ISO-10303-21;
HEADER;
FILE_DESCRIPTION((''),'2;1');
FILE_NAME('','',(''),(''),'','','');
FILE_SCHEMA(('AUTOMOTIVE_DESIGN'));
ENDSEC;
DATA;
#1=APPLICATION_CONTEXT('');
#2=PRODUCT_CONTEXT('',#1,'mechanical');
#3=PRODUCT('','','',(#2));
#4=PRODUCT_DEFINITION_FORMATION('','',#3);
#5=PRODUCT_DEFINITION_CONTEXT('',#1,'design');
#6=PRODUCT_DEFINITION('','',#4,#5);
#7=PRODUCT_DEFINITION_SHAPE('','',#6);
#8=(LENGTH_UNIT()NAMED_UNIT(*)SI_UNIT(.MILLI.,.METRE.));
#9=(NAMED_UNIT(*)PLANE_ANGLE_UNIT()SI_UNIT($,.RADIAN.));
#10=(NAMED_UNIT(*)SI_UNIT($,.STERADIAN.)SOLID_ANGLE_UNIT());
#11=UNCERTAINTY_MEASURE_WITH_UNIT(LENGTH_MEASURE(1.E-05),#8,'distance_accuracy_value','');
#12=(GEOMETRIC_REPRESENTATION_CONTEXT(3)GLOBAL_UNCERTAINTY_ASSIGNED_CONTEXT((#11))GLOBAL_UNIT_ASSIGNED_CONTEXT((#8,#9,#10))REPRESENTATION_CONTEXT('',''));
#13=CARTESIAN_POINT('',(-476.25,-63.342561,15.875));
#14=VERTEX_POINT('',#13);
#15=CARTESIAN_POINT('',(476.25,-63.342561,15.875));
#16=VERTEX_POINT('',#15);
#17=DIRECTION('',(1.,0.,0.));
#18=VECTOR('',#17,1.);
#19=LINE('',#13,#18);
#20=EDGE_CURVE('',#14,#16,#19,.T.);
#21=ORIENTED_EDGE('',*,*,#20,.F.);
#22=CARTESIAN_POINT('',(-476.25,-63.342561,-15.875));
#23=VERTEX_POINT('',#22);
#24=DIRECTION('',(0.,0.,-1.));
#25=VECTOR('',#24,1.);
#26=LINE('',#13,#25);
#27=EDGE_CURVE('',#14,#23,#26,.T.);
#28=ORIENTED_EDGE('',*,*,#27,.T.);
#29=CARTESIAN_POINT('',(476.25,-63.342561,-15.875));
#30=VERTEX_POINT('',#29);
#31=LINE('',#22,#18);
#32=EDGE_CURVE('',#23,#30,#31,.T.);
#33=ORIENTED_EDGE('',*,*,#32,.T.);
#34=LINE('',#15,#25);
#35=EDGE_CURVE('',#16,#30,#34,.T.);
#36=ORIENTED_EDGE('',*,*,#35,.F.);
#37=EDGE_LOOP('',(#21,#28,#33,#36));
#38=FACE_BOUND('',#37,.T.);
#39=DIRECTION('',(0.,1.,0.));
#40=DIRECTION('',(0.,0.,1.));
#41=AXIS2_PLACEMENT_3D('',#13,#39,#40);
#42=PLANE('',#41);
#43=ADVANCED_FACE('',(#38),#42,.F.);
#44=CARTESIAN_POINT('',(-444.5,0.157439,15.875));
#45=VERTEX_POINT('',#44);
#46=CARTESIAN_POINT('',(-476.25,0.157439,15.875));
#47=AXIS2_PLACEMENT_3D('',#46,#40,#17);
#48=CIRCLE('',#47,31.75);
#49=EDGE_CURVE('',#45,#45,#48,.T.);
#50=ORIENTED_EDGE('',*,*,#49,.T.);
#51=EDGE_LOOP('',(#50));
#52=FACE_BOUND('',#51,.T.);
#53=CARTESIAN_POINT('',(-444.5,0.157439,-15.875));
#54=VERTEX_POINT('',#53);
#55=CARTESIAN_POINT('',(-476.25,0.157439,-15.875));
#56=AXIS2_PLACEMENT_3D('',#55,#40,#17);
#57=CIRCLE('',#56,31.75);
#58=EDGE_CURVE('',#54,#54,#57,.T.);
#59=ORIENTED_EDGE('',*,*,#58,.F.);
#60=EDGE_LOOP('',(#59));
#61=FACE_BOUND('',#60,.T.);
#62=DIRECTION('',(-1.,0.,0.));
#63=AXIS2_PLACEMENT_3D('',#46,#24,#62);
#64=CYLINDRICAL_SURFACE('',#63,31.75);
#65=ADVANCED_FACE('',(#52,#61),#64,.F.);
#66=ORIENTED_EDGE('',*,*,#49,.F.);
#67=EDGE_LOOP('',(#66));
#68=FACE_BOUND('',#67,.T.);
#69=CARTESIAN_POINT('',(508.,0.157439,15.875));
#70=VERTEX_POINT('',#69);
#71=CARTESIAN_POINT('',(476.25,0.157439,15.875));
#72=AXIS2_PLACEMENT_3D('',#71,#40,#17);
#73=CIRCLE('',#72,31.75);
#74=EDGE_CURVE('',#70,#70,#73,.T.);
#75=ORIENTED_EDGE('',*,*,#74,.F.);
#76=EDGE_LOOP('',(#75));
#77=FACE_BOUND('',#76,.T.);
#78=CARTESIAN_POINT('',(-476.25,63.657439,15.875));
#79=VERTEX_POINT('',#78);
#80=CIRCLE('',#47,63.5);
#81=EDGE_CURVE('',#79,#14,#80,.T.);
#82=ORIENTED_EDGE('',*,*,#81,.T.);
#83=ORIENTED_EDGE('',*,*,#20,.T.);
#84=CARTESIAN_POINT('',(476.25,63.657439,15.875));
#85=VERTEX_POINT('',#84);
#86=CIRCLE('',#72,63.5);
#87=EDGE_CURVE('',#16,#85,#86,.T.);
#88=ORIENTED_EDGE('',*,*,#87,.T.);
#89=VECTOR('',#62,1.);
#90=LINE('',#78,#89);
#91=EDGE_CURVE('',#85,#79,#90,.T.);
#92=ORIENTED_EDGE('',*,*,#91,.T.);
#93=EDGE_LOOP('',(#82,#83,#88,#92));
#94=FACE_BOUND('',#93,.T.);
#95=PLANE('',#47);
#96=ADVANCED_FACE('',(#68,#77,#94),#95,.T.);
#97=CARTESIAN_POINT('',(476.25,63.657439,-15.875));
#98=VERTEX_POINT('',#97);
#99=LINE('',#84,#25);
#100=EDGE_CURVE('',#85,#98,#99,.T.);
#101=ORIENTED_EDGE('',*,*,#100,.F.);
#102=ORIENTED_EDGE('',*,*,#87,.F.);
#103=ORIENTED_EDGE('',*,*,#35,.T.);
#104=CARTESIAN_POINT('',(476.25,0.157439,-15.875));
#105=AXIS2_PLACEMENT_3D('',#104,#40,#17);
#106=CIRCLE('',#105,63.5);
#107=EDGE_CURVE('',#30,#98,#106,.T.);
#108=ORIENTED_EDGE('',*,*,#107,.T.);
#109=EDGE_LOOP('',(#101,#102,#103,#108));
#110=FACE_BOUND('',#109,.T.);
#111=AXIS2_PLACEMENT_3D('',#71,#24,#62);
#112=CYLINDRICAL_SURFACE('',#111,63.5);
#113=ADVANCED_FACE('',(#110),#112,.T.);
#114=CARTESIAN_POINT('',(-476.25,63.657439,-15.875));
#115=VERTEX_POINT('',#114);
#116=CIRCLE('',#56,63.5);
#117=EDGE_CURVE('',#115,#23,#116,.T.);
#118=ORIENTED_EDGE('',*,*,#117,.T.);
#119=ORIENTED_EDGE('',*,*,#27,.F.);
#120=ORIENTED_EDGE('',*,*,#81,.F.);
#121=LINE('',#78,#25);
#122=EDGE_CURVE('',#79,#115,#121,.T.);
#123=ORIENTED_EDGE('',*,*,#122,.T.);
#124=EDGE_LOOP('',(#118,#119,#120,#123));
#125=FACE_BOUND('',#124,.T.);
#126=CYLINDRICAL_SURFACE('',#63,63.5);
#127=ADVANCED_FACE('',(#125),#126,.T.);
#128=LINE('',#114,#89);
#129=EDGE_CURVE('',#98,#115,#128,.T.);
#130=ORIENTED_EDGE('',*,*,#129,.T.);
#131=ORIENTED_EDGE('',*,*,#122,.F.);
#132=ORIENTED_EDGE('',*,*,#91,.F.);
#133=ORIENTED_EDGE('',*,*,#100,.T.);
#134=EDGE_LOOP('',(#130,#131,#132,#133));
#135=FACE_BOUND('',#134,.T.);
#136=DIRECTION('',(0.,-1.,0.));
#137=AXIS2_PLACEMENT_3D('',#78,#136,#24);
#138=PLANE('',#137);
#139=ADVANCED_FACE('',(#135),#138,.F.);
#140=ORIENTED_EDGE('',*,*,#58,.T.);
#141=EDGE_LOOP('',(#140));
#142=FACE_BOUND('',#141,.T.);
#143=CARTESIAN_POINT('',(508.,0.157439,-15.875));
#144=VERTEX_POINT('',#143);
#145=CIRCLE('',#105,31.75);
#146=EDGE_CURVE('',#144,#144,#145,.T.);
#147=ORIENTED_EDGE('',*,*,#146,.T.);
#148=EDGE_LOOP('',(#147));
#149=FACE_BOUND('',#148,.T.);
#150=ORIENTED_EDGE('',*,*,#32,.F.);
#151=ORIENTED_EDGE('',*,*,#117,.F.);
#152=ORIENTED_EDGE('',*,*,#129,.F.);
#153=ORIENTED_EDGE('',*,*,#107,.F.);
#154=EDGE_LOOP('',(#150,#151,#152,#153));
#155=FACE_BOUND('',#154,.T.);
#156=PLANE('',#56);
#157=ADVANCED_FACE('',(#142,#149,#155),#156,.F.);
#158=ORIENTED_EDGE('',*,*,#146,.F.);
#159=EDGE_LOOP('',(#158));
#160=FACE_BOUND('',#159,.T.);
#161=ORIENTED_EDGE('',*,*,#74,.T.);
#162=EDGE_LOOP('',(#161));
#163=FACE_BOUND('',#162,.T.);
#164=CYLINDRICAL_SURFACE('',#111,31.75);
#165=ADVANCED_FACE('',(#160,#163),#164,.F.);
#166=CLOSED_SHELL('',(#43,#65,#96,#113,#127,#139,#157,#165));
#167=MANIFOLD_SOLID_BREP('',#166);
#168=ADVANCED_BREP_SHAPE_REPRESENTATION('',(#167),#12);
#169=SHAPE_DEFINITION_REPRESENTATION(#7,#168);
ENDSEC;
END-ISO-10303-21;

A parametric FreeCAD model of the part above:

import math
import FreeCAD as App
import Part
import Sketcher

V = App.Vector
Q = App.Units.Quantity

doc = App.newDocument("Part")
body = doc.addObject("PartDesign::Body", "Body")

sketch1 = body.newObject("Sketcher::SketchObject", "Sketch")
sketch1.AttachmentSupport = (doc.getObject("XY_Plane"), [""])
sketch1.MapMode = "FlatFace"
sketch1.addGeometry([
    Part.LineSegment(V(476, 64, 0), V(-476, 64, 0)),
    Part.ArcOfCircle(Part.Circle(V(-476, 0, 0), V(0, 0, 1), 64), math.radians(90), math.radians(270)),
    Part.LineSegment(V(-476, -63, 0), V(476, -63, 0)),
    Part.ArcOfCircle(Part.Circle(V(476, 0, 0), V(0, 0, 1), 64), math.radians(-90), math.radians(90)),
    Part.Circle(V(476, 0, 0), V(0, 0, 1), 32),
    Part.Circle(V(-476, 0, 0), V(0, 0, 1), 32),
], False)
sketch1.addConstraint([
    Sketcher.Constraint("Tangent", 0, 2, 1, 1),
    Sketcher.Constraint("Tangent", 1, 2, 2, 1),
    Sketcher.Constraint("Tangent", 2, 2, 3, 1),
    Sketcher.Constraint("Tangent", 3, 2, 0, 1),
    Sketcher.Constraint("Horizontal", 0),
    Sketcher.Constraint("Horizontal", 2),
    Sketcher.Constraint("Coincident", 4, 3, 3, 3),
    Sketcher.Constraint("Coincident", 5, 3, 1, 3),
    Sketcher.Constraint("Equal", 4, 5),
    Sketcher.Constraint("Diameter", 4, Q("2.5 in")),
    Sketcher.Constraint("Radius", 1, Q("2.5 in")),
    Sketcher.Constraint("DistanceX", 0, 2, 0, 1, Q("37.5 in")),
    Sketcher.Constraint("DistanceX", 1, 3, -1, 1, Q("18.75 in")),
    Sketcher.Constraint("DistanceY", -1, 1, 1, 3, Q("0.157439 mm")),
])
pad1 = body.newObject("PartDesign::Pad", "Pad")
pad1.Profile = sketch1
pad1.Length = Q("1.25 in")
pad1.Midplane = True

doc.recompute()
